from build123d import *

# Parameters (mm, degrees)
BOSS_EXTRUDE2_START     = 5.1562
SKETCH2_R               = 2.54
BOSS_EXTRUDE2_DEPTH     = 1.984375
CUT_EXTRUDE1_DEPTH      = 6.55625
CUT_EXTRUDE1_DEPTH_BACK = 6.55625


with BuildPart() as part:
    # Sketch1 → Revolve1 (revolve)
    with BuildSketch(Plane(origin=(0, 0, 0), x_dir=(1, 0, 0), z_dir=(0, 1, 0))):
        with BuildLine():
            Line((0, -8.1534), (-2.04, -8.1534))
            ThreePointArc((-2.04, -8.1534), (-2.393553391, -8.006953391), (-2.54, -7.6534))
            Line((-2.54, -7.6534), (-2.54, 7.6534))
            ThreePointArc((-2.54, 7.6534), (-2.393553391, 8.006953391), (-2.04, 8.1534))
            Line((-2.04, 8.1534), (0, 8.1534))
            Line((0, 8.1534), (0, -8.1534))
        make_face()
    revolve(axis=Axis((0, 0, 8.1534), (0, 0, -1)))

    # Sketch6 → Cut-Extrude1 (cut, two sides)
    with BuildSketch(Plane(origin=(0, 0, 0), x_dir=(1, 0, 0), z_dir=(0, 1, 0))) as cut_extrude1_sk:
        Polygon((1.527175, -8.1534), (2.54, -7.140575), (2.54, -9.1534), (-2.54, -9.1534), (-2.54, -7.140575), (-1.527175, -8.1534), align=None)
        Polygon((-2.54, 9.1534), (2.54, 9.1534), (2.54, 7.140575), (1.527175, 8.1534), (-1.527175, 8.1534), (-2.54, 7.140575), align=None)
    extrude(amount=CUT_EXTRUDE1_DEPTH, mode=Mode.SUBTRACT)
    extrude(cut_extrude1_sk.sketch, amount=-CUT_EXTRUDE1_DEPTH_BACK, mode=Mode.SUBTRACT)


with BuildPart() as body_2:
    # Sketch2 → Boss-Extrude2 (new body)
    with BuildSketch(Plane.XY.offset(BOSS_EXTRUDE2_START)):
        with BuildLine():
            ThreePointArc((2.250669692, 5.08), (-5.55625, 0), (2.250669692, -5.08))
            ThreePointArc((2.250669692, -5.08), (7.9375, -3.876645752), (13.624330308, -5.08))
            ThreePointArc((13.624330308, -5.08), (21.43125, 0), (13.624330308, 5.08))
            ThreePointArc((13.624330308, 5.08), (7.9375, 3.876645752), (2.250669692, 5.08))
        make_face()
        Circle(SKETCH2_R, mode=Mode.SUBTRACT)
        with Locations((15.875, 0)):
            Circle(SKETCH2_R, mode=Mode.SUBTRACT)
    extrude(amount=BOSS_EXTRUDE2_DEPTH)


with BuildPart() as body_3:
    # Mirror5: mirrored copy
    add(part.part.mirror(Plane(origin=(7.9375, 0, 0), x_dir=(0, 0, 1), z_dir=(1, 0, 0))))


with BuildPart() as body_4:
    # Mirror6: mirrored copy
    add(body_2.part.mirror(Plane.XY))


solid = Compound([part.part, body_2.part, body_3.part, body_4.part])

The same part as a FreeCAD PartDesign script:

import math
import FreeCAD as App
import Part
import Sketcher

V = App.Vector
Q = App.Units.Quantity

doc = App.newDocument("Part")
body = doc.addObject("PartDesign::Body", "Body")

sketch1 = body.newObject("Sketcher::SketchObject", "Sketch")
sketch1.AttachmentSupport = (doc.getObject("XZ_Plane"), [""])
sketch1.MapMode = "FlatFace"
sketch1.addGeometry([
    Part.LineSegment(V(-2.04, 8.1534, 0), V(0, 8.1534, 0)),
    Part.LineSegment(V(0, 8.1534, 0), V(0, -8.1534, 0)),
    Part.LineSegment(V(0, -8.1534, 0), V(-2.04, -8.1534, 0)),
    Part.ArcOfCircle(Part.Circle(V(-2.04, -7.6534, 0), V(0, 0, 1), 0.5), math.radians(180), math.radians(270)),
    Part.LineSegment(V(-2.54, -7.6534, 0), V(-2.54, 7.6534, 0)),
    Part.ArcOfCircle(Part.Circle(V(-2.04, 7.6534, 0), V(0, 0, 1), 0.5), math.radians(90), math.radians(180)),
], False)
sketch1.addConstraint([
    Sketcher.Constraint("Coincident", 0, 2, 1, 1),
    Sketcher.Constraint("Coincident", 1, 2, 2, 1),
    Sketcher.Constraint("Tangent", 2, 2, 3, 2),
    Sketcher.Constraint("Tangent", 3, 1, 4, 1),
    Sketcher.Constraint("Tangent", 4, 2, 5, 2),
    Sketcher.Constraint("Tangent", 5, 1, 0, 1),
    Sketcher.Constraint("Horizontal", 0),
    Sketcher.Constraint("Vertical", 1),
    Sketcher.Constraint("Horizontal", 2),
    Sketcher.Constraint("Vertical", 4),
    Sketcher.Constraint("Equal", 3, 5),
    Sketcher.Constraint("Symmetric", 0, 2, 1, 2, -1, 1),
    Sketcher.Constraint("DistanceX", 3, 1, -1, 1, Q("0.1 in")),
    Sketcher.Constraint("DistanceY", 1, 2, 1, 1, Q("0.642 in")),
    Sketcher.Constraint("Radius", 3, 0.5),
])
revolution = body.newObject("PartDesign::Revolution", "Revolution")
revolution.Profile = sketch1
revolution.ReferenceAxis = (sketch1, ["V_Axis"])
revolution.Angle = 360

sketch2 = body.newObject("Sketcher::SketchObject", "Sketch001")
sketch2.AttachmentSupport = (doc.getObject("XZ_Plane"), [""])
sketch2.MapMode = "FlatFace"
sketch2.addGeometry([
    Part.LineSegment(V(2.54, 7.140575, 0), V(1.527175, 8.1534, 0)),
    Part.LineSegment(V(1.527175, 8.1534, 0), V(-1.527175, 8.1534, 0)),
    Part.LineSegment(V(-1.527175, 8.1534, 0), V(-2.54, 7.140575, 0)),
    Part.LineSegment(V(-2.54, 7.140575, 0), V(-2.54, 9.1534, 0)),
    Part.LineSegment(V(-2.54, 9.1534, 0), V(2.54, 9.1534, 0)),
    Part.LineSegment(V(2.54, 9.1534, 0), V(2.54, 7.140575, 0)),
    Part.LineSegment(V(2.54, -9.1534, 0), V(-2.54, -9.1534, 0)),
    Part.LineSegment(V(-2.54, -9.1534, 0), V(-2.54, -7.140575, 0)),
    Part.LineSegment(V(-2.54, -7.140575, 0), V(-1.527175, -8.1534, 0)),
    Part.LineSegment(V(-1.527175, -8.1534, 0), V(1.527175, -8.1534, 0)),
    Part.LineSegment(V(1.527175, -8.1534, 0), V(2.54, -7.140575, 0)),
    Part.LineSegment(V(2.54, -7.140575, 0), V(2.54, -9.1534, 0)),
], False)
sketch2.addConstraint([
    Sketcher.Constraint("Coincident", 0, 2, 1, 1),
    Sketcher.Constraint("Coincident", 1, 2, 2, 1),
    Sketcher.Constraint("Coincident", 2, 2, 3, 1),
    Sketcher.Constraint("Coincident", 3, 2, 4, 1),
    Sketcher.Constraint("Coincident", 4, 2, 5, 1),
    Sketcher.Constraint("Coincident", 5, 2, 0, 1),
    Sketcher.Constraint("Coincident", 6, 2, 7, 1),
    Sketcher.Constraint("Coincident", 7, 2, 8, 1),
    Sketcher.Constraint("Coincident", 8, 2, 9, 1),
    Sketcher.Constraint("Coincident", 9, 2, 10, 1),
    Sketcher.Constraint("Coincident", 10, 2, 11, 1),
    Sketcher.Constraint("Coincident", 11, 2, 6, 1),
    Sketcher.Constraint("Horizontal", 1),
    Sketcher.Constraint("Vertical", 3),
    Sketcher.Constraint("Horizontal", 4),
    Sketcher.Constraint("Vertical", 5),
    Sketcher.Constraint("Horizontal", 6),
    Sketcher.Constraint("Vertical", 7),
    Sketcher.Constraint("Horizontal", 9),
    Sketcher.Constraint("Vertical", 11),
    Sketcher.Constraint("Symmetric", 4, 2, 6, 2, -1, 1),
    Sketcher.Constraint("Symmetric", 0, 2, 8, 2, -1, 1),
    Sketcher.Constraint("Symmetric", 2, 2, 10, 2, -1, 1),
    Sketcher.Constraint("Symmetric", 2, 2, 5, 2, -2),
    Sketcher.Constraint("Perpendicular", 0, 2),
    Sketcher.Constraint("Perpendicular", 2, 8),
    Sketcher.Constraint("Perpendicular", 8, 10),
    Sketcher.Constraint("Vertical", 1, 2, 8, 2),
    Sketcher.Constraint("DistanceX", 4, 1, 4, 2, Q("0.2 in")),
    Sketcher.Constraint("DistanceY", -1, 1, 0, 2, Q("0.321 in")),
    Sketcher.Constraint("DistanceX", 1, 2, 1, 1, 3.05435),
    Sketcher.Constraint("DistanceY", -1, 1, 3, 2, 9.1534),
])
pocket1 = body.newObject("PartDesign::Pocket", "Pocket")
pocket1.Profile = sketch2
pocket1.Type = "ThroughAll"
pocket1.Midplane = True
body2 = doc.addObject("PartDesign::Body", "Body001")

sketch3 = body2.newObject("Sketcher::SketchObject", "Sketch002")
sketch3.AttachmentSupport = (doc.getObject("XY_Plane001"), [""])
sketch3.MapMode = "FlatFace"
sketch3.AttachmentOffset = App.Placement(V(0, 0, 0.203 * 25.4), App.Rotation())
sketch3.addGeometry([
    Part.ArcOfCircle(Part.Circle(V(0, 0, 0), V(0, 0, 1), 5.55625), math.radians(66.104492), math.radians(293.895508)),
    Part.ArcOfCircle(Part.Circle(V(7.9375, -17.915779, 0), V(0, 0, 1), 14.039133), math.radians(66.104492), math.radians(113.895508)),
    Part.ArcOfCircle(Part.Circle(V(15.875, 0, 0), V(0, 0, 1), 5.55625), math.radians(-113.895508), math.radians(113.895508)),
    Part.ArcOfCircle(Part.Circle(V(7.9375, 17.915779, 0), V(0, 0, 1), 14.039133), math.radians(-113.895508), math.radians(-66.104492)),
    Part.Circle(V(0, 0, 0), V(0, 0, 1), 2.54),
    Part.Circle(V(15.875, 0, 0), V(0, 0, 1), 2.54),
], False)
sketch3.addConstraint([
    Sketcher.Constraint("Tangent", 0, 2, 1, 2),
    Sketcher.Constraint("Tangent", 1, 1, 2, 1),
    Sketcher.Constraint("Tangent", 2, 2, 3, 2),
    Sketcher.Constraint("Tangent", 3, 1, 0, 1),
    Sketcher.Constraint("Coincident", 0, 3, -1, 1),
    Sketcher.Constraint("Coincident", 4, 3, -1, 1),
    Sketcher.Constraint("Coincident", 5, 3, 2, 3),
    Sketcher.Constraint("Equal", 0, 2),
    Sketcher.Constraint("Equal", 1, 3),
    Sketcher.Constraint("Equal", 4, 5),
    Sketcher.Constraint("PointOnObject", 2, 3, -1),
    Sketcher.Constraint("Diameter", 4, Q("0.2 in")),
    Sketcher.Constraint("Radius", 0, Q("0.21875 in")),
    Sketcher.Constraint("DistanceY", 0, 2, -1, 1, Q("0.2 in")),
    Sketcher.Constraint("DistanceX", -1, 1, 1, 3, Q("0.3125 in")),
])
pad1 = body2.newObject("PartDesign::Pad", "Pad")
pad1.Profile = sketch3
pad1.Length = Q("0.078125 in")
body3 = doc.addObject("PartDesign::Body", "Body002")
doc.recompute()

mirroring = doc.addObject("Part::Mirroring", "Mirroring")
mirroring.Source = body
mirroring.Base = V(7.9375, 0, 0)
mirroring.Normal = V(1, 0, 0)
body3.BaseFeature = mirroring
doc.recompute()
body4 = doc.addObject("PartDesign::Body", "Body003")
doc.recompute()

mirroring2 = doc.addObject("Part::Mirroring", "Mirroring001")
mirroring2.Source = body2
mirroring2.Base = V(0, 0, 0)
mirroring2.Normal = V(0, 0, 1)
body4.BaseFeature = mirroring2
doc.recompute()
mirroring.Visibility = False
mirroring2.Visibility = False

doc.recompute()
